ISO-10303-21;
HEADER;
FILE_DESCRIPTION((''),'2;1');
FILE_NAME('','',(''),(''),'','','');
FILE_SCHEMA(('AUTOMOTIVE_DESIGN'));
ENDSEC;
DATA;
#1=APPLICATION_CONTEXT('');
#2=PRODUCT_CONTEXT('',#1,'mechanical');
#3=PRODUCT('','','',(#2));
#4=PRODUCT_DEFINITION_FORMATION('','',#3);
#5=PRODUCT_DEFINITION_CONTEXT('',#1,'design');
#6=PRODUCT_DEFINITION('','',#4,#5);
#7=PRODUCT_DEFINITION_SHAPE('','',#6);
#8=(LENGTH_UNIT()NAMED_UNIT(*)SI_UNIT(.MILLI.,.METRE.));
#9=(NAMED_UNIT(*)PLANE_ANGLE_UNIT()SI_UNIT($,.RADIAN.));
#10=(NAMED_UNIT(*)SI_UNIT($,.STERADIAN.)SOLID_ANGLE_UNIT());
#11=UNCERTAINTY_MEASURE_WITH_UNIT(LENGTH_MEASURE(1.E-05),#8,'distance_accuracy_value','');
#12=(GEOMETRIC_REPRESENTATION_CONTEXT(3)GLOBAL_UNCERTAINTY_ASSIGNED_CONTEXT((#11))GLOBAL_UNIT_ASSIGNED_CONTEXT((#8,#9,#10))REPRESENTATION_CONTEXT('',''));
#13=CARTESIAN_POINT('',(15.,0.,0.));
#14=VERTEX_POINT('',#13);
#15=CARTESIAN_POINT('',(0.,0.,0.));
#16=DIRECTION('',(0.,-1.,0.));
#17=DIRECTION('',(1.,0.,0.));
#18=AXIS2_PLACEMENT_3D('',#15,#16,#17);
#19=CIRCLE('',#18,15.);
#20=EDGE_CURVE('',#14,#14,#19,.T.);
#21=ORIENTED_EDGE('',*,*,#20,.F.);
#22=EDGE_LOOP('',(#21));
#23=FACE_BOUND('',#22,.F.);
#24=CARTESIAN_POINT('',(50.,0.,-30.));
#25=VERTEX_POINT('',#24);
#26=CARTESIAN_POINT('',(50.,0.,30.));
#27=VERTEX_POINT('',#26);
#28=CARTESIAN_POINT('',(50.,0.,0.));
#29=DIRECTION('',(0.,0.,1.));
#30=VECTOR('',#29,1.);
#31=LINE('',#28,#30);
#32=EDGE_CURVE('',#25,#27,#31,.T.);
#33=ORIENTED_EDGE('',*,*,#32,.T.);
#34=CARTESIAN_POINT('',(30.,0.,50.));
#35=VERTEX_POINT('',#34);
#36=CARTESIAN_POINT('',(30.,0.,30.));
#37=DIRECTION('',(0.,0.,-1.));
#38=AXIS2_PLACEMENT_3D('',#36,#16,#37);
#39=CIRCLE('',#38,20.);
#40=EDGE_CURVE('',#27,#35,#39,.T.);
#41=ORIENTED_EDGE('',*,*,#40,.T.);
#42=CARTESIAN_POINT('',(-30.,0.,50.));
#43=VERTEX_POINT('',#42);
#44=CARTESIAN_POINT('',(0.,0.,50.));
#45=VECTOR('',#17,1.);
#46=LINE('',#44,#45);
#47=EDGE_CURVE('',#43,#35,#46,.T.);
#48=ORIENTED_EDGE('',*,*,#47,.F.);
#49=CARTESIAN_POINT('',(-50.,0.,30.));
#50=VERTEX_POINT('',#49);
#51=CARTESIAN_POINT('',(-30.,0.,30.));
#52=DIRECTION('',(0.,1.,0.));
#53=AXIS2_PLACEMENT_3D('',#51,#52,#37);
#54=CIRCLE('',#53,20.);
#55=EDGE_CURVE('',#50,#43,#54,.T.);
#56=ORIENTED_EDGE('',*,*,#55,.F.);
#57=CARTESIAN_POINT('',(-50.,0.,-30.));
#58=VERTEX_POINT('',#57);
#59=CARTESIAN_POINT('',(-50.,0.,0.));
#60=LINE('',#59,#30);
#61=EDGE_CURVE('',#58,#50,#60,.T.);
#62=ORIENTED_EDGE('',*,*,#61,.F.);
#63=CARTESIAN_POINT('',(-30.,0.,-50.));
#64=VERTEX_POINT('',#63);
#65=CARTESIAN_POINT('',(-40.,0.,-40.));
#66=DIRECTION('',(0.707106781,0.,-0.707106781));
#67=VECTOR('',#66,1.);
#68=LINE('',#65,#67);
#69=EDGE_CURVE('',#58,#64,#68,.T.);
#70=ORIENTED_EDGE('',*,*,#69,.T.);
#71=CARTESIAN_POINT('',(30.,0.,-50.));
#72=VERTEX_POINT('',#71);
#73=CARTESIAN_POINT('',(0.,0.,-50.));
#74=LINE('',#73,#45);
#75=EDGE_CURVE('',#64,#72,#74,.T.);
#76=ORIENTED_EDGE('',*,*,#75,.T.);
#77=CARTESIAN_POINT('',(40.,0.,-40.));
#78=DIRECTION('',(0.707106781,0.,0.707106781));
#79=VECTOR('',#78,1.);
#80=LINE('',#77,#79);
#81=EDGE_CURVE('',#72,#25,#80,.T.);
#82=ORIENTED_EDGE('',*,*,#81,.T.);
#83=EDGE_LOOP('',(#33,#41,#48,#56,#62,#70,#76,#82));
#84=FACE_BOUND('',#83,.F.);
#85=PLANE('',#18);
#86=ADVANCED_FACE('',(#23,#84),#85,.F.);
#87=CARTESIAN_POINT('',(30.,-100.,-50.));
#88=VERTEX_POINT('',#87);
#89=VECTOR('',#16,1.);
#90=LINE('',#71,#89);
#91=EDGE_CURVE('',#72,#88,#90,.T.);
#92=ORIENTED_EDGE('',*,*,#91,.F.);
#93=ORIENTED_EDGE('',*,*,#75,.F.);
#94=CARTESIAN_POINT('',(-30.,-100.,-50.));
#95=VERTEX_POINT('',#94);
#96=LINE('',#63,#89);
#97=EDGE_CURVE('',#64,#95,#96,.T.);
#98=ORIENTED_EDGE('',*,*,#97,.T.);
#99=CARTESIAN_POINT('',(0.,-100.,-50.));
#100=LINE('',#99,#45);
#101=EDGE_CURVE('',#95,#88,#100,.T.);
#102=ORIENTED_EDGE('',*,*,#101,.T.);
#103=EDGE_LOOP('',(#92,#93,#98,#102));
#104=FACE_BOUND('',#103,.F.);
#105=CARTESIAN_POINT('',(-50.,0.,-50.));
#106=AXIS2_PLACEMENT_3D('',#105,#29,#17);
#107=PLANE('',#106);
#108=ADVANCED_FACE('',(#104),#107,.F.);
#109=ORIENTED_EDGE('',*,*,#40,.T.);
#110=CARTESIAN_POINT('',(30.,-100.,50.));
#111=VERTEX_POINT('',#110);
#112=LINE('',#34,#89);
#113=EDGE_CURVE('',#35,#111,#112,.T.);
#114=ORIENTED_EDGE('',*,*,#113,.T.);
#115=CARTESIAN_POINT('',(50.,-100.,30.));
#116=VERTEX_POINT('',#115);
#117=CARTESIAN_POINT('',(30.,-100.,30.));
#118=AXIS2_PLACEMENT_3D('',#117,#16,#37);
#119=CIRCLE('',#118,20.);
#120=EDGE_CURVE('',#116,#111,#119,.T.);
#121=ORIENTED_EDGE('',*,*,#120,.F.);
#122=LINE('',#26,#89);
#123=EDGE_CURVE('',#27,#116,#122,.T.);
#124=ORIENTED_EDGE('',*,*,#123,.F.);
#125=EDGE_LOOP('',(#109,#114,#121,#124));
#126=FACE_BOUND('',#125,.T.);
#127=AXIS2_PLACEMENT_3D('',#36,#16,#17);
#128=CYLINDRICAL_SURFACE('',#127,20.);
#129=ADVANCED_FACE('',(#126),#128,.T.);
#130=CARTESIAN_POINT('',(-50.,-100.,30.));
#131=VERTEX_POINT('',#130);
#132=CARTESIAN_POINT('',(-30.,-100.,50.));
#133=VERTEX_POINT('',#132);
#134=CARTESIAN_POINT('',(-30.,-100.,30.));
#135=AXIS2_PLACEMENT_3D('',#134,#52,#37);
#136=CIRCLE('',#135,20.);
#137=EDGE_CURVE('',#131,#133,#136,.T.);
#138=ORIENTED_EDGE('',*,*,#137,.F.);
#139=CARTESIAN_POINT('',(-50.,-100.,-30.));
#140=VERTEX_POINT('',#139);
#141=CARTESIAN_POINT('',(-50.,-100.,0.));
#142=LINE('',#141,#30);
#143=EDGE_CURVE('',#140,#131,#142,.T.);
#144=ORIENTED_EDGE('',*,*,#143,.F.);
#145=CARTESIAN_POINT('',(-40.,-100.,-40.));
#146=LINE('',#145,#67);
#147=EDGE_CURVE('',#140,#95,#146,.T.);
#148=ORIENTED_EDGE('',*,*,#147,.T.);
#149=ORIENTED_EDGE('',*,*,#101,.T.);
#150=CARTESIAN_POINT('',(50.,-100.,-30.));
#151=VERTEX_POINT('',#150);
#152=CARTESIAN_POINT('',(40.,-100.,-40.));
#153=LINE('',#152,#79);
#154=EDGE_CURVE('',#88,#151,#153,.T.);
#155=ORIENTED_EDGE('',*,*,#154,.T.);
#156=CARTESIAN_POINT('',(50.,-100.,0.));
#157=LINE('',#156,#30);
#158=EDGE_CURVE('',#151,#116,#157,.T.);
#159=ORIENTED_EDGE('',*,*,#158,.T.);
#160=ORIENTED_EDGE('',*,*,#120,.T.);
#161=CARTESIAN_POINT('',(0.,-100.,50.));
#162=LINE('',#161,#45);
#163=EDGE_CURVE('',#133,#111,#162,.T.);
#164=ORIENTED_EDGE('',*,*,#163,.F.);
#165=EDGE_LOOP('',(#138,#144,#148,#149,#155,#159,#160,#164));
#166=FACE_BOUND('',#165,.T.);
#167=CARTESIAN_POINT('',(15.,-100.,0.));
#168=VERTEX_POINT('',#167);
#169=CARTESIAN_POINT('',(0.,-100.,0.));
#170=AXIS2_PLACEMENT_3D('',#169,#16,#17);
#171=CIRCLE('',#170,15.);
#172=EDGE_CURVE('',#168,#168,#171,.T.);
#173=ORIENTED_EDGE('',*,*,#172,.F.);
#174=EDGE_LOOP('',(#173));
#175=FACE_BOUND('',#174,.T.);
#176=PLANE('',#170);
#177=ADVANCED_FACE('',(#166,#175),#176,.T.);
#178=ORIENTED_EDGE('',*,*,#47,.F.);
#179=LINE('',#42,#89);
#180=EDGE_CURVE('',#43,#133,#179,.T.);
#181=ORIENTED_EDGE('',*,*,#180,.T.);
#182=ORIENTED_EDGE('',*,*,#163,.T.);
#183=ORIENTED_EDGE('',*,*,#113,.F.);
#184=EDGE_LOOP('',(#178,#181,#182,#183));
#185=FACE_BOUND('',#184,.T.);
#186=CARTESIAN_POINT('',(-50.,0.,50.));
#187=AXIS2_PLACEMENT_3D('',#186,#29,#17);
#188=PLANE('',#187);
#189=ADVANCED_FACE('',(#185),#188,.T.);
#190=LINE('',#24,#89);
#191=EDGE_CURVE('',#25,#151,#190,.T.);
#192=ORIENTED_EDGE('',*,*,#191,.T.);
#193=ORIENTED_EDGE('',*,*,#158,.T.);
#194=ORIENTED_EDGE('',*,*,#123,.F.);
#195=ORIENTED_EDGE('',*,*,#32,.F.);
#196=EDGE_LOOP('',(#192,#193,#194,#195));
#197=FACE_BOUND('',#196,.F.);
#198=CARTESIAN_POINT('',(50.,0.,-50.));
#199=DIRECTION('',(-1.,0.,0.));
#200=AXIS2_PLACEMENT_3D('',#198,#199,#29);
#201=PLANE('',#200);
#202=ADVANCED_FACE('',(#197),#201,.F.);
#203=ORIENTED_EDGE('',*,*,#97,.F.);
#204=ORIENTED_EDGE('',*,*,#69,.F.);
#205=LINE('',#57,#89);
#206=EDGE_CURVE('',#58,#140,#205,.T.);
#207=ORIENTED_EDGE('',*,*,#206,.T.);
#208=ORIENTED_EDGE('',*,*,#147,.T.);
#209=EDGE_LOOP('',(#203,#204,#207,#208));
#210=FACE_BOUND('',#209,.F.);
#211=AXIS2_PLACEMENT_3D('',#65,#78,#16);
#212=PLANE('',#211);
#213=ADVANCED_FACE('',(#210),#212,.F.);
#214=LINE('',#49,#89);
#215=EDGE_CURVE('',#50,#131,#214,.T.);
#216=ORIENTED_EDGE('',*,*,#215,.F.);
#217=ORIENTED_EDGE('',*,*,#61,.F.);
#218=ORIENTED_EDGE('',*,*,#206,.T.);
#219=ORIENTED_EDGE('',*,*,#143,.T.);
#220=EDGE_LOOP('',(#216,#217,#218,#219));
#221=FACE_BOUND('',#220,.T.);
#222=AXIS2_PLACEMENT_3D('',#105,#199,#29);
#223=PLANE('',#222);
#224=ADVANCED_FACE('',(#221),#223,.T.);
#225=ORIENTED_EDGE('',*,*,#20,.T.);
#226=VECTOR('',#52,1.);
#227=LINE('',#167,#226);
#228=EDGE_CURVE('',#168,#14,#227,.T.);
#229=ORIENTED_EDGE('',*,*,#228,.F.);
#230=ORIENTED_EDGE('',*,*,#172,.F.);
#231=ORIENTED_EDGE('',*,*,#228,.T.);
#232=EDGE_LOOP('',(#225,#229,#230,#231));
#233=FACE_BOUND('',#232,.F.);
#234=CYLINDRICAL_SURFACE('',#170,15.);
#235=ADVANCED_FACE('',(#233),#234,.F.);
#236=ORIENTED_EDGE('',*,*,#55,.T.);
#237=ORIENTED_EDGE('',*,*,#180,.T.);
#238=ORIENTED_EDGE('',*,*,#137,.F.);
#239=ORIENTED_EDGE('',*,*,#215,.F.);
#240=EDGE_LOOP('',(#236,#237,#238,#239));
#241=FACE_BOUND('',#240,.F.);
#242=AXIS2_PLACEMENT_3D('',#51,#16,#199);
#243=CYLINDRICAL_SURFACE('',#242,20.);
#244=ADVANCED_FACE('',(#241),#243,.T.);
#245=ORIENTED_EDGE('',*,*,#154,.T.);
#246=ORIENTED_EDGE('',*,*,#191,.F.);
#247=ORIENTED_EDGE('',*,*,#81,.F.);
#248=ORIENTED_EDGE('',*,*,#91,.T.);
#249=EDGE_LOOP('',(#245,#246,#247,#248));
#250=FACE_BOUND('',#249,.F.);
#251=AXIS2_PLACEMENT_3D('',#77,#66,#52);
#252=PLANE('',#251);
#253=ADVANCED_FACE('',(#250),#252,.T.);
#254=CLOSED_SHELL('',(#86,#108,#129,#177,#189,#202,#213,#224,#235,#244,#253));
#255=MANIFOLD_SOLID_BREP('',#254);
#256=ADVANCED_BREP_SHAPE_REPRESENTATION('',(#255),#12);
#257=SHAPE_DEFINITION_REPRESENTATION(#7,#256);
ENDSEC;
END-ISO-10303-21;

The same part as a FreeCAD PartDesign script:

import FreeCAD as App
import Part
import Sketcher

V = App.Vector
Q = App.Units.Quantity


def edges_at(feature, points):
    """Names of the edges that pass closest to the given points."""
    edges = feature.Shape.Edges
    near = lambda p: min(range(len(edges)), key=lambda i: edges[i].distToShape(Part.Vertex(*p))[0])
    return sorted({f"Edge{near(p) + 1}" for p in points})

doc = App.newDocument("Part")
params = doc.addObject("Spreadsheet::Sheet", "Params")
for row, (alias, value) in enumerate([
    ("sketch1_width", "100 mm"),
    ("pad1_length", "100 mm"),
    ("fillet_radius", "20 mm"),
    ("chamfer_size", "20 mm"),
    ("sketch2_diameter", "30 mm"),
], start=1):
    params.set(f"A{row}", alias)
    params.set(f"B{row}", "=" + value)
    params.setAlias(f"B{row}", alias)

body = doc.addObject("PartDesign::Body", "Body")

sketch1 = body.newObject("Sketcher::SketchObject", "Sketch")
sketch1.AttachmentSupport = (doc.getObject("XZ_Plane"), [""])
sketch1.MapMode = "FlatFace"
sketch1.addGeometry([
    Part.LineSegment(V(-50, 50, 0), V(-50, -50, 0)),
    Part.LineSegment(V(-50, -50, 0), V(50, -50, 0)),
    Part.LineSegment(V(50, -50, 0), V(50, 50, 0)),
    Part.LineSegment(V(50, 50, 0), V(-50, 50, 0)),
], False)
sketch1.addConstraint([
    Sketcher.Constraint("Coincident", 0, 2, 1, 1),
    Sketcher.Constraint("Coincident", 1, 2, 2, 1),
    Sketcher.Constraint("Coincident", 2, 2, 3, 1),
    Sketcher.Constraint("Coincident", 3, 2, 0, 1),
    Sketcher.Constraint("Vertical", 0),
    Sketcher.Constraint("Horizontal", 1),
    Sketcher.Constraint("Vertical", 2),
    Sketcher.Constraint("Horizontal", 3),
    Sketcher.Constraint("Symmetric", 0, 2, 2, 2, -1, 1),
    Sketcher.Constraint("Equal", 3, 0),
    Sketcher.Constraint("DistanceX", 1, 1, 1, 2, Q("100 mm")),
])
sketch1.setExpression("Constraints[10]", "Params.sketch1_width")
pad1 = body.newObject("PartDesign::Pad", "Pad")
pad1.Profile = sketch1
pad1.setExpression("Length", "Params.pad1_length")
doc.recompute()

fillet = body.newObject("PartDesign::Fillet", "Fillet")
fillet.Base = (pad1, edges_at(pad1, [(-50, -50, 50), (50, -50, 50)]))
fillet.setExpression("Radius", "Params.fillet_radius")
doc.recompute()

chamfer = body.newObject("PartDesign::Chamfer", "Chamfer")
chamfer.Base = (fillet, edges_at(fillet, [(50, -50, -50), (-50, -50, -50)]))
chamfer.setExpression("Size", "Params.chamfer_size")

sketch2 = body.newObject("Sketcher::SketchObject", "Sketch001")
sketch2.AttachmentSupport = (doc.getObject("XZ_Plane"), [""])
sketch2.MapMode = "FlatFace"
sketch2.AttachmentOffset = App.Placement(V(0, 0, 100), App.Rotation())
sketch2.addGeometry(Part.Circle(V(0, 0, 0), V(0, 0, 1), 15), False)
sketch2.addConstraint([
    Sketcher.Constraint("Coincident", 0, 3, -1, 1),
    Sketcher.Constraint("Diameter", 0, Q("30 mm")),
])
sketch2.setExpression("Constraints[1]", "Params.sketch2_diameter")
pocket1 = body.newObject("PartDesign::Pocket", "Pocket")
pocket1.Profile = sketch2
pocket1.Type = "ThroughAll"

doc.recompute()
